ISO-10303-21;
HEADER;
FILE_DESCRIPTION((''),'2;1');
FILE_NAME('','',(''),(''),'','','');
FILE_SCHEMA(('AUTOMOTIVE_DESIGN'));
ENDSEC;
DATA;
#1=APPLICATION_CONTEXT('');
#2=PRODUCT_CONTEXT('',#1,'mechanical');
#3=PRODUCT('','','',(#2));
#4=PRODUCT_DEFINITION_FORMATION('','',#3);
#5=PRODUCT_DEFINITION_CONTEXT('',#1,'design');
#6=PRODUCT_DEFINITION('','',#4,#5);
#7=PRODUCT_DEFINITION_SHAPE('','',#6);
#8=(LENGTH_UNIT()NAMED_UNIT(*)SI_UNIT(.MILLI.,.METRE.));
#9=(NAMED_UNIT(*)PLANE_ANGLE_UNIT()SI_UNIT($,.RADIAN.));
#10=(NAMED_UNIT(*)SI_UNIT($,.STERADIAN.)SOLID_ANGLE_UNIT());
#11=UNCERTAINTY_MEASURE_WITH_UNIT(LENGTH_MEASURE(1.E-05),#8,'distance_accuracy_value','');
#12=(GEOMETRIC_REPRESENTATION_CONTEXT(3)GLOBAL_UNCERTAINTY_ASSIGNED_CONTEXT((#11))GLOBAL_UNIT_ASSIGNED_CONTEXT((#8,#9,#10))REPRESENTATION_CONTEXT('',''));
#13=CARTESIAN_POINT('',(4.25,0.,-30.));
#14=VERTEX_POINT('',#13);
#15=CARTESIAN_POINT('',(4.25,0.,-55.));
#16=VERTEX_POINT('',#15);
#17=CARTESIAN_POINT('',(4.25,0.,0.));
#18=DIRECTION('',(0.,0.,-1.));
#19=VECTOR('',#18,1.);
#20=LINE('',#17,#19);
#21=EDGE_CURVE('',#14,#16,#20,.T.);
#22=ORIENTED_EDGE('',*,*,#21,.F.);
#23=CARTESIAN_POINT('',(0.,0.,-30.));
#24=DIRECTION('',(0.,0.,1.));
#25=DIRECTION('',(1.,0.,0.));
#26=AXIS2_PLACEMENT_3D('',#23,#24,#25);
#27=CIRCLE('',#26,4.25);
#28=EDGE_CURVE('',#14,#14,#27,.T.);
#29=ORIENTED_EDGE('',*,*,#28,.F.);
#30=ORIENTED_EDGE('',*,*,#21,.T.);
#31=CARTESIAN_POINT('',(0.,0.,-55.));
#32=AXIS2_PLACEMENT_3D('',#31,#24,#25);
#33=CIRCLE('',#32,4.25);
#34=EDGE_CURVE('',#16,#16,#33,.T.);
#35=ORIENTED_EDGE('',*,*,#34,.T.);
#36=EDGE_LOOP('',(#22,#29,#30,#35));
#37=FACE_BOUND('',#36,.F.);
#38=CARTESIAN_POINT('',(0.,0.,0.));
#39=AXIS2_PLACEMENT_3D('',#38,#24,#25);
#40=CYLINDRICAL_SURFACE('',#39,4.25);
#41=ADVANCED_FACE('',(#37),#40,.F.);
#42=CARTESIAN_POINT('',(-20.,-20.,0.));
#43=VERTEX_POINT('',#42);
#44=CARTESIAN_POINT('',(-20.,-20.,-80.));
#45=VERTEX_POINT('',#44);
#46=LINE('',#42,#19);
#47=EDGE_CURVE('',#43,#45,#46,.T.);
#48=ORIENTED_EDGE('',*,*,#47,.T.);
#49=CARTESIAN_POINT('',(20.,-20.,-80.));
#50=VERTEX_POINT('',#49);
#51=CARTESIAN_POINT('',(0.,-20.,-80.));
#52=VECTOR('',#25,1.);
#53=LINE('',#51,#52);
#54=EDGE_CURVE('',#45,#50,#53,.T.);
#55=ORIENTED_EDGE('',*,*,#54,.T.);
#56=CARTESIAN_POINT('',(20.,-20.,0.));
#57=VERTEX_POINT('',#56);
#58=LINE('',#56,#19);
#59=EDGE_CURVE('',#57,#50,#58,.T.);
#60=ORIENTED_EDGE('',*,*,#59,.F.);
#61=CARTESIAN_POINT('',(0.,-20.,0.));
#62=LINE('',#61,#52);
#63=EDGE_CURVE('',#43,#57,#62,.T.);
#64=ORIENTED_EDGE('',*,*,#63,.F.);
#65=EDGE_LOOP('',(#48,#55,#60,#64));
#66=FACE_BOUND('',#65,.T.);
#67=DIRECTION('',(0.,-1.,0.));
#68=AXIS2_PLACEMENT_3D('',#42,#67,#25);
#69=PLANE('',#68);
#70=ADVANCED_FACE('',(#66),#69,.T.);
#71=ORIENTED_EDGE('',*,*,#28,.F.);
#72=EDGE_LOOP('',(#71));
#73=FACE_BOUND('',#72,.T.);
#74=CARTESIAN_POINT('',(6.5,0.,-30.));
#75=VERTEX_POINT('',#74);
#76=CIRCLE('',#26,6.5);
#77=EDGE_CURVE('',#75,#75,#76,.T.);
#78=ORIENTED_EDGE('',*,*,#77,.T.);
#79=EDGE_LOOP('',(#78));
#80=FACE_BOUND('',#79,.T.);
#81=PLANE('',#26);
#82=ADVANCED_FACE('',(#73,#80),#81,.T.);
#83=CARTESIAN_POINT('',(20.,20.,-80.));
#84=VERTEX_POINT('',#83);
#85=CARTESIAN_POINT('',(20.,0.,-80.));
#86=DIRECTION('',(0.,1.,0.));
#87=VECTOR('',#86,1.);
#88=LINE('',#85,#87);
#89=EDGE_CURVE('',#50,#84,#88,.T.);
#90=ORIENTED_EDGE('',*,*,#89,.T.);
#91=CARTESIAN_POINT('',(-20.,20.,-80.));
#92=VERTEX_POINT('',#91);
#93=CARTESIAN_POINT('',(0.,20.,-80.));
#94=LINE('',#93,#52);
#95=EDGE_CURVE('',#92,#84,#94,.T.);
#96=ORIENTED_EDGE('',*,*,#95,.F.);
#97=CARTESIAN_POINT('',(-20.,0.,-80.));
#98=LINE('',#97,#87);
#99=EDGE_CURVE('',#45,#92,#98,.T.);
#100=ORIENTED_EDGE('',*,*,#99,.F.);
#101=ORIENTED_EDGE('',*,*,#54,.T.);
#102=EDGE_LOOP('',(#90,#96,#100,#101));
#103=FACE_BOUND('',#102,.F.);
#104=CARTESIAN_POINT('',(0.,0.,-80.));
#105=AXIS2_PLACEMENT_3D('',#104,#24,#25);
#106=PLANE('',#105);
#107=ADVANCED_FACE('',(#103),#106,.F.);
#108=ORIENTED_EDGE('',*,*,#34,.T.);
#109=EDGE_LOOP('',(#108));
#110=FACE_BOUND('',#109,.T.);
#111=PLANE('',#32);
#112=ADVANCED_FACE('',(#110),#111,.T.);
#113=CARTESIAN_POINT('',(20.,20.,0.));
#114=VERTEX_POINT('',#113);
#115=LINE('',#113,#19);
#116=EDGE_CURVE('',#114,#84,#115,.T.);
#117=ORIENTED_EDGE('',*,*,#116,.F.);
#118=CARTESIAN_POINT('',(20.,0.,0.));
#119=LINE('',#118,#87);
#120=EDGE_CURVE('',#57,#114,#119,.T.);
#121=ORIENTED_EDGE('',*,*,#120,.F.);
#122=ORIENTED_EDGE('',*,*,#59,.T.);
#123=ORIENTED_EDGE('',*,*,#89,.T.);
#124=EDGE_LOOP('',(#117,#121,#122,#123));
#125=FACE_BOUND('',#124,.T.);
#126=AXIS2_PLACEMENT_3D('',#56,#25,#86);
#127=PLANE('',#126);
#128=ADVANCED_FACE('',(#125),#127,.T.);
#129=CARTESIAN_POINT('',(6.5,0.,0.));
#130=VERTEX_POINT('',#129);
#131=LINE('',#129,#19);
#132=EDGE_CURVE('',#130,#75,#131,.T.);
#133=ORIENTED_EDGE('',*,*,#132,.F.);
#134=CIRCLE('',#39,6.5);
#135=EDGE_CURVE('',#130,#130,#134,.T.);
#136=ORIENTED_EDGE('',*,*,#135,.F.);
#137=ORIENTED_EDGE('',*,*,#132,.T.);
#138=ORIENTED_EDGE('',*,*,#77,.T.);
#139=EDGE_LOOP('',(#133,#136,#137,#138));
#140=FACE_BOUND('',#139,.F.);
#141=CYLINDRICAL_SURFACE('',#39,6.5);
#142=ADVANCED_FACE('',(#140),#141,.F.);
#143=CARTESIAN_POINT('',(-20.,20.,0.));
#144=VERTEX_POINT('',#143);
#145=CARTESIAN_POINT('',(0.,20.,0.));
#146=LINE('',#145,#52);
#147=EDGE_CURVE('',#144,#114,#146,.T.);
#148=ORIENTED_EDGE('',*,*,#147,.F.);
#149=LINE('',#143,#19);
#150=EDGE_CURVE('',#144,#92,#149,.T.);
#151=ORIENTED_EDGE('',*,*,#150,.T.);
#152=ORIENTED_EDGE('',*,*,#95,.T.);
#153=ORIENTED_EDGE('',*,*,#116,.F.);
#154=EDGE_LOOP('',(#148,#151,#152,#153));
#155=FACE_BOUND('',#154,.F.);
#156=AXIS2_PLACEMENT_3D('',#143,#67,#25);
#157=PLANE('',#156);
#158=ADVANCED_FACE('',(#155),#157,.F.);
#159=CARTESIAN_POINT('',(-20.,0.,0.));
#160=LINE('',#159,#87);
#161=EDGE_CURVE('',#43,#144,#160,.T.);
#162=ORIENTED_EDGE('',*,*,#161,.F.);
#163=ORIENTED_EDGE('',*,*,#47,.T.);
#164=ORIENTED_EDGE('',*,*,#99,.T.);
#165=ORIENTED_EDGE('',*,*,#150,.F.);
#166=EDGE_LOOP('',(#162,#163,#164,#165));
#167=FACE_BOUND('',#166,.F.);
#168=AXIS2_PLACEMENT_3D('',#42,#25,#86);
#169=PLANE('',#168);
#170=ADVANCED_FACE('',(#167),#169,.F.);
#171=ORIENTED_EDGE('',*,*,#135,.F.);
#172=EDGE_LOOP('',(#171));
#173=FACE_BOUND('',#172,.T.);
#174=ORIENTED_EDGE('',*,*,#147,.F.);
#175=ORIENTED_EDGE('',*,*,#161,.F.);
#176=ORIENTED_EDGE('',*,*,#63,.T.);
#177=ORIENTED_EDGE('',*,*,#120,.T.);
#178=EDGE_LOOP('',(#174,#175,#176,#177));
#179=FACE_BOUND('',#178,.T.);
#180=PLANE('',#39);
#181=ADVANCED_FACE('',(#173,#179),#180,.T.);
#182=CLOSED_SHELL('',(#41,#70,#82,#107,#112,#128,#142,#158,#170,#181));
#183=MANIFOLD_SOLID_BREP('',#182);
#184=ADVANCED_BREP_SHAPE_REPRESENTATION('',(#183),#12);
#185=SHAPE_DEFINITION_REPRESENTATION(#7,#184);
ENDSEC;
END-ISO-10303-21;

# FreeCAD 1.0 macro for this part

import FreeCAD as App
import Part
import Sketcher

V = App.Vector
Q = App.Units.Quantity


def add_polygon(sketch, points):
    """Adds a closed chain of lines whose ends are joined by coincident constraints."""
    first, n = sketch.GeometryCount, len(points)
    for a, b in zip(points, points[1:] + points[:1]):
        sketch.addGeometry(Part.LineSegment(App.Vector(*a, 0), App.Vector(*b, 0)), False)
    for i in range(n):
        sketch.addConstraint(Sketcher.Constraint("Coincident", first + i, 2, first + (i + 1) % n, 1))

doc = App.newDocument("Part")
body = doc.addObject("PartDesign::Body", "Body")

# Sketch on XY plane
sketch1 = doc.addObject("Sketcher::SketchObject", "Sketch")
body.addObject(sketch1)
sketch1.AttachmentSupport = (doc.XY_Plane, [""])
sketch1.MapMode = "FlatFace"
add_polygon(sketch1, [(-20, 20), (-20, -20), (20, -20), (20, 20)])  # lines 0-3
sketch1.addConstraint(Sketcher.Constraint("Vertical", 0))
sketch1.addConstraint(Sketcher.Constraint("Horizontal", 1))
sketch1.addConstraint(Sketcher.Constraint("Vertical", 2))
sketch1.addConstraint(Sketcher.Constraint("Horizontal", 3))
sketch1.addConstraint(Sketcher.Constraint("Symmetric", 0, 2, 2, 2, -1, 1))
sketch1.addConstraint(Sketcher.Constraint("Equal", 3, 0))
sketch1.addConstraint(Sketcher.Constraint("DistanceX", 1, 1, 1, 2, Q("40 mm")))
pad1 = doc.addObject("PartDesign::Pad", "Pad")
body.addObject(pad1)
pad1.Profile = sketch1
pad1.Length = 80
pad1.Reversed = True

# Sketch on XY plane
sketch2 = doc.addObject("Sketcher::SketchObject", "Sketch001")
body.addObject(sketch2)
sketch2.AttachmentSupport = (doc.XY_Plane, [""])
sketch2.MapMode = "FlatFace"
sketch2.addGeometry(Part.Circle(V(0, 0, 0), V(0, 0, 1), 6), False)
sketch2.addConstraint(Sketcher.Constraint("Coincident", 0, 3, -1, 1))
sketch2.addConstraint(Sketcher.Constraint("Diameter", 0, Q("13 mm")))
pocket1 = doc.addObject("PartDesign::Pocket", "Pocket")
body.addObject(pocket1)
pocket1.Profile = sketch2
pocket1.Length = 30

# Sketch on XY plane
sketch3 = doc.addObject("Sketcher::SketchObject", "Sketch002")
body.addObject(sketch3)
sketch3.AttachmentSupport = (doc.XY_Plane, [""])
sketch3.MapMode = "FlatFace"
sketch3.addGeometry(Part.Circle(V(0, 0, 0), V(0, 0, 1), 4.2), False)
sketch3.addConstraint(Sketcher.Constraint("Coincident", 0, 3, -1, 1))
sketch3.addConstraint(Sketcher.Constraint("Diameter", 0, Q("8.5 mm")))
pocket2 = doc.addObject("PartDesign::Pocket", "Pocket001")
body.addObject(pocket2)
pocket2.Profile = sketch3
pocket2.Length = 55

doc.recompute()
